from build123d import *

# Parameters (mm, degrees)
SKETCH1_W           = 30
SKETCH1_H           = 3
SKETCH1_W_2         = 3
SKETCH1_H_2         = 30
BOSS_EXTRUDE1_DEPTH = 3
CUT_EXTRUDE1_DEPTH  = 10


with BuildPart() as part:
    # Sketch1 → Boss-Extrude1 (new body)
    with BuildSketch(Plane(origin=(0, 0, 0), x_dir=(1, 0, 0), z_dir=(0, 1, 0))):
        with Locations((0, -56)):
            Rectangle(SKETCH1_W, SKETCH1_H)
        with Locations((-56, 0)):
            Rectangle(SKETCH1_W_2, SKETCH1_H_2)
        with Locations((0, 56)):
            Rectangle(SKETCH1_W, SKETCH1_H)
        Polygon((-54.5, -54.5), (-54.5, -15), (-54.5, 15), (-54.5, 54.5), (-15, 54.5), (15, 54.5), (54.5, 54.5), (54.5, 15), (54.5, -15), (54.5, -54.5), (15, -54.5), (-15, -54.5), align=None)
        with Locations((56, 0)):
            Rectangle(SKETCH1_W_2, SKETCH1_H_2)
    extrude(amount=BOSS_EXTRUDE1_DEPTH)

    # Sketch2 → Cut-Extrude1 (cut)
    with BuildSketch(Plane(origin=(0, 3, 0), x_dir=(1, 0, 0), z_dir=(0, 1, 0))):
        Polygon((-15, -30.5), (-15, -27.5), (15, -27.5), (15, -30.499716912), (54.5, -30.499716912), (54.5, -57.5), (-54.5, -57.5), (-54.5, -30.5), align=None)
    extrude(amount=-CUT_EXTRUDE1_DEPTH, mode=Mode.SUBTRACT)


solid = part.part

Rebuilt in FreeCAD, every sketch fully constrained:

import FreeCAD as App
import Part
import Sketcher
from FreeCAD import Vector


def add_polygon(sketch, points):
    """Adds a closed chain of lines whose ends are joined by coincident constraints."""
    first, n = sketch.GeometryCount, len(points)
    for a, b in zip(points, points[1:] + points[:1]):
        sketch.addGeometry(Part.LineSegment(App.Vector(*a, 0), App.Vector(*b, 0)), False)
    for i in range(n):
        sketch.addConstraint(Sketcher.Constraint("Coincident", first + i, 2, first + (i + 1) % n, 1))

doc = App.newDocument("Part")
body = doc.addObject("PartDesign::Body", "Body")

# Sketch on XZ plane
sketch1 = body.newObject("Sketcher::SketchObject", "Sketch")
sketch1.AttachmentSupport = (doc.getObject("XZ_Plane"), [""])
sketch1.MapMode = "FlatFace"
add_polygon(sketch1, [(-15, 54.5), (-15, 57.5), (15, 57.5), (15, 54.5), (54.5, 54.5), (54.5, 15), (57.5, 15), (57.5, -15), (54.5, -15), (54.5, -54.5), (15, -54.5), (15, -57.5), (-15, -57.5), (-15, -54.5), (-54.5, -54.5), (-54.5, -15), (-57.5, -15), (-57.5, 15), (-54.5, 15), (-54.5, 54.5)])  # lines 0-19
sketch1.addConstraint(Sketcher.Constraint("Vertical", 0))
sketch1.addConstraint(Sketcher.Constraint("Horizontal", 1))
sketch1.addConstraint(Sketcher.Constraint("Vertical", 2))
sketch1.addConstraint(Sketcher.Constraint("Horizontal", 3))
sketch1.addConstraint(Sketcher.Constraint("Vertical", 4))
sketch1.addConstraint(Sketcher.Constraint("Horizontal", 5))
sketch1.addConstraint(Sketcher.Constraint("Vertical", 6))
sketch1.addConstraint(Sketcher.Constraint("Horizontal", 7))
sketch1.addConstraint(Sketcher.Constraint("Vertical", 8))
sketch1.addConstraint(Sketcher.Constraint("Horizontal", 9))
sketch1.addConstraint(Sketcher.Constraint("Vertical", 10))
sketch1.addConstraint(Sketcher.Constraint("Horizontal", 11))
sketch1.addConstraint(Sketcher.Constraint("Vertical", 12))
sketch1.addConstraint(Sketcher.Constraint("Horizontal", 13))
sketch1.addConstraint(Sketcher.Constraint("Vertical", 14))
sketch1.addConstraint(Sketcher.Constraint("Horizontal", 15))
sketch1.addConstraint(Sketcher.Constraint("Vertical", 16))
sketch1.addConstraint(Sketcher.Constraint("Horizontal", 17))
sketch1.addConstraint(Sketcher.Constraint("Vertical", 18))
sketch1.addConstraint(Sketcher.Constraint("Horizontal", 19))
sketch1.addConstraint(Sketcher.Constraint("Symmetric", 0, 2, 10, 2, -1, 1))
sketch1.addConstraint(Sketcher.Constraint("Symmetric", 2, 2, 12, 2, -1, 1))
sketch1.addConstraint(Sketcher.Constraint("Symmetric", 4, 2, 14, 2, -1, 1))
sketch1.addConstraint(Sketcher.Constraint("Symmetric", 6, 2, 16, 2, -1, 1))
sketch1.addConstraint(Sketcher.Constraint("Symmetric", 8, 2, 18, 2, -1, 1))
sketch1.addConstraint(Sketcher.Constraint("Symmetric", 9, 2, 12, 2, -2))
sketch1.addConstraint(Sketcher.Constraint("Symmetric", 7, 2, 14, 2, -2))
sketch1.addConstraint(Sketcher.Constraint("Equal", 17, 0))
sketch1.addConstraint(Sketcher.Constraint("Equal", 19, 4))
sketch1.addConstraint(Sketcher.Constraint("Equal", 11, 6))
sketch1.addConstraint(Sketcher.Constraint("DistanceX", 1, 1, 1, 2, 30.0))
sketch1.addConstraint(Sketcher.Constraint("DistanceX", 5, 1, 5, 2, 3.0))
sketch1.addConstraint(Sketcher.Constraint("DistanceX", 3, 1, 3, 2, 39.5))
pad1 = body.newObject("PartDesign::Pad", "Pad")
pad1.Profile = sketch1
pad1.Length = 3
pad1.Reversed = True

# Sketch on XZ plane
sketch2 = body.newObject("Sketcher::SketchObject", "Sketch001")
sketch2.AttachmentSupport = (doc.getObject("XZ_Plane"), [""])
sketch2.MapMode = "FlatFace"
sketch2.AttachmentOffset = App.Placement(Vector(0, 0, -3), App.Rotation())
add_polygon(sketch2, [(-15, 27.5), (-15, 30.5), (-54.5, 30.5), (-54.5, 57.5), (54.5, 57.5), (54.5, 30.5), (15, 30.5), (15, 27.5)])  # lines 0-7
sketch2.addConstraint(Sketcher.Constraint("Vertical", 0))
sketch2.addConstraint(Sketcher.Constraint("Horizontal", 1))
sketch2.addConstraint(Sketcher.Constraint("Vertical", 2))
sketch2.addConstraint(Sketcher.Constraint("Horizontal", 3))
sketch2.addConstraint(Sketcher.Constraint("Vertical", 4))
sketch2.addConstraint(Sketcher.Constraint("Horizontal", 5))
sketch2.addConstraint(Sketcher.Constraint("Vertical", 6))
sketch2.addConstraint(Sketcher.Constraint("Horizontal", 7))
sketch2.addConstraint(Sketcher.Constraint("Equal", 1, 5))
sketch2.addConstraint(Sketcher.Constraint("DistanceX", 3, 1, 3, 2, 109.0))
sketch2.addConstraint(Sketcher.Constraint("DistanceX", 7, 2, 7, 1, 30.0))
sketch2.addConstraint(Sketcher.Constraint("DistanceY", 0, 1, 0, 2, 3.0))
sketch2.addConstraint(Sketcher.Constraint("DistanceY", 2, 1, 2, 2, 27.0))
sketch2.addConstraint(Sketcher.Constraint("DistanceX", 0, 2, -1, 1, 15.0))
sketch2.addConstraint(Sketcher.Constraint("DistanceY", -1, 1, 0, 2, 30.5))
sketch2.addConstraint(Sketcher.Constraint("DistanceY", 4, 2, 4, 1, 27.000283))
pocket1 = body.newObject("PartDesign::Pocket", "Pocket")
pocket1.Profile = sketch2
pocket1.Length = 10
pocket1.Reversed = True

doc.recompute()
